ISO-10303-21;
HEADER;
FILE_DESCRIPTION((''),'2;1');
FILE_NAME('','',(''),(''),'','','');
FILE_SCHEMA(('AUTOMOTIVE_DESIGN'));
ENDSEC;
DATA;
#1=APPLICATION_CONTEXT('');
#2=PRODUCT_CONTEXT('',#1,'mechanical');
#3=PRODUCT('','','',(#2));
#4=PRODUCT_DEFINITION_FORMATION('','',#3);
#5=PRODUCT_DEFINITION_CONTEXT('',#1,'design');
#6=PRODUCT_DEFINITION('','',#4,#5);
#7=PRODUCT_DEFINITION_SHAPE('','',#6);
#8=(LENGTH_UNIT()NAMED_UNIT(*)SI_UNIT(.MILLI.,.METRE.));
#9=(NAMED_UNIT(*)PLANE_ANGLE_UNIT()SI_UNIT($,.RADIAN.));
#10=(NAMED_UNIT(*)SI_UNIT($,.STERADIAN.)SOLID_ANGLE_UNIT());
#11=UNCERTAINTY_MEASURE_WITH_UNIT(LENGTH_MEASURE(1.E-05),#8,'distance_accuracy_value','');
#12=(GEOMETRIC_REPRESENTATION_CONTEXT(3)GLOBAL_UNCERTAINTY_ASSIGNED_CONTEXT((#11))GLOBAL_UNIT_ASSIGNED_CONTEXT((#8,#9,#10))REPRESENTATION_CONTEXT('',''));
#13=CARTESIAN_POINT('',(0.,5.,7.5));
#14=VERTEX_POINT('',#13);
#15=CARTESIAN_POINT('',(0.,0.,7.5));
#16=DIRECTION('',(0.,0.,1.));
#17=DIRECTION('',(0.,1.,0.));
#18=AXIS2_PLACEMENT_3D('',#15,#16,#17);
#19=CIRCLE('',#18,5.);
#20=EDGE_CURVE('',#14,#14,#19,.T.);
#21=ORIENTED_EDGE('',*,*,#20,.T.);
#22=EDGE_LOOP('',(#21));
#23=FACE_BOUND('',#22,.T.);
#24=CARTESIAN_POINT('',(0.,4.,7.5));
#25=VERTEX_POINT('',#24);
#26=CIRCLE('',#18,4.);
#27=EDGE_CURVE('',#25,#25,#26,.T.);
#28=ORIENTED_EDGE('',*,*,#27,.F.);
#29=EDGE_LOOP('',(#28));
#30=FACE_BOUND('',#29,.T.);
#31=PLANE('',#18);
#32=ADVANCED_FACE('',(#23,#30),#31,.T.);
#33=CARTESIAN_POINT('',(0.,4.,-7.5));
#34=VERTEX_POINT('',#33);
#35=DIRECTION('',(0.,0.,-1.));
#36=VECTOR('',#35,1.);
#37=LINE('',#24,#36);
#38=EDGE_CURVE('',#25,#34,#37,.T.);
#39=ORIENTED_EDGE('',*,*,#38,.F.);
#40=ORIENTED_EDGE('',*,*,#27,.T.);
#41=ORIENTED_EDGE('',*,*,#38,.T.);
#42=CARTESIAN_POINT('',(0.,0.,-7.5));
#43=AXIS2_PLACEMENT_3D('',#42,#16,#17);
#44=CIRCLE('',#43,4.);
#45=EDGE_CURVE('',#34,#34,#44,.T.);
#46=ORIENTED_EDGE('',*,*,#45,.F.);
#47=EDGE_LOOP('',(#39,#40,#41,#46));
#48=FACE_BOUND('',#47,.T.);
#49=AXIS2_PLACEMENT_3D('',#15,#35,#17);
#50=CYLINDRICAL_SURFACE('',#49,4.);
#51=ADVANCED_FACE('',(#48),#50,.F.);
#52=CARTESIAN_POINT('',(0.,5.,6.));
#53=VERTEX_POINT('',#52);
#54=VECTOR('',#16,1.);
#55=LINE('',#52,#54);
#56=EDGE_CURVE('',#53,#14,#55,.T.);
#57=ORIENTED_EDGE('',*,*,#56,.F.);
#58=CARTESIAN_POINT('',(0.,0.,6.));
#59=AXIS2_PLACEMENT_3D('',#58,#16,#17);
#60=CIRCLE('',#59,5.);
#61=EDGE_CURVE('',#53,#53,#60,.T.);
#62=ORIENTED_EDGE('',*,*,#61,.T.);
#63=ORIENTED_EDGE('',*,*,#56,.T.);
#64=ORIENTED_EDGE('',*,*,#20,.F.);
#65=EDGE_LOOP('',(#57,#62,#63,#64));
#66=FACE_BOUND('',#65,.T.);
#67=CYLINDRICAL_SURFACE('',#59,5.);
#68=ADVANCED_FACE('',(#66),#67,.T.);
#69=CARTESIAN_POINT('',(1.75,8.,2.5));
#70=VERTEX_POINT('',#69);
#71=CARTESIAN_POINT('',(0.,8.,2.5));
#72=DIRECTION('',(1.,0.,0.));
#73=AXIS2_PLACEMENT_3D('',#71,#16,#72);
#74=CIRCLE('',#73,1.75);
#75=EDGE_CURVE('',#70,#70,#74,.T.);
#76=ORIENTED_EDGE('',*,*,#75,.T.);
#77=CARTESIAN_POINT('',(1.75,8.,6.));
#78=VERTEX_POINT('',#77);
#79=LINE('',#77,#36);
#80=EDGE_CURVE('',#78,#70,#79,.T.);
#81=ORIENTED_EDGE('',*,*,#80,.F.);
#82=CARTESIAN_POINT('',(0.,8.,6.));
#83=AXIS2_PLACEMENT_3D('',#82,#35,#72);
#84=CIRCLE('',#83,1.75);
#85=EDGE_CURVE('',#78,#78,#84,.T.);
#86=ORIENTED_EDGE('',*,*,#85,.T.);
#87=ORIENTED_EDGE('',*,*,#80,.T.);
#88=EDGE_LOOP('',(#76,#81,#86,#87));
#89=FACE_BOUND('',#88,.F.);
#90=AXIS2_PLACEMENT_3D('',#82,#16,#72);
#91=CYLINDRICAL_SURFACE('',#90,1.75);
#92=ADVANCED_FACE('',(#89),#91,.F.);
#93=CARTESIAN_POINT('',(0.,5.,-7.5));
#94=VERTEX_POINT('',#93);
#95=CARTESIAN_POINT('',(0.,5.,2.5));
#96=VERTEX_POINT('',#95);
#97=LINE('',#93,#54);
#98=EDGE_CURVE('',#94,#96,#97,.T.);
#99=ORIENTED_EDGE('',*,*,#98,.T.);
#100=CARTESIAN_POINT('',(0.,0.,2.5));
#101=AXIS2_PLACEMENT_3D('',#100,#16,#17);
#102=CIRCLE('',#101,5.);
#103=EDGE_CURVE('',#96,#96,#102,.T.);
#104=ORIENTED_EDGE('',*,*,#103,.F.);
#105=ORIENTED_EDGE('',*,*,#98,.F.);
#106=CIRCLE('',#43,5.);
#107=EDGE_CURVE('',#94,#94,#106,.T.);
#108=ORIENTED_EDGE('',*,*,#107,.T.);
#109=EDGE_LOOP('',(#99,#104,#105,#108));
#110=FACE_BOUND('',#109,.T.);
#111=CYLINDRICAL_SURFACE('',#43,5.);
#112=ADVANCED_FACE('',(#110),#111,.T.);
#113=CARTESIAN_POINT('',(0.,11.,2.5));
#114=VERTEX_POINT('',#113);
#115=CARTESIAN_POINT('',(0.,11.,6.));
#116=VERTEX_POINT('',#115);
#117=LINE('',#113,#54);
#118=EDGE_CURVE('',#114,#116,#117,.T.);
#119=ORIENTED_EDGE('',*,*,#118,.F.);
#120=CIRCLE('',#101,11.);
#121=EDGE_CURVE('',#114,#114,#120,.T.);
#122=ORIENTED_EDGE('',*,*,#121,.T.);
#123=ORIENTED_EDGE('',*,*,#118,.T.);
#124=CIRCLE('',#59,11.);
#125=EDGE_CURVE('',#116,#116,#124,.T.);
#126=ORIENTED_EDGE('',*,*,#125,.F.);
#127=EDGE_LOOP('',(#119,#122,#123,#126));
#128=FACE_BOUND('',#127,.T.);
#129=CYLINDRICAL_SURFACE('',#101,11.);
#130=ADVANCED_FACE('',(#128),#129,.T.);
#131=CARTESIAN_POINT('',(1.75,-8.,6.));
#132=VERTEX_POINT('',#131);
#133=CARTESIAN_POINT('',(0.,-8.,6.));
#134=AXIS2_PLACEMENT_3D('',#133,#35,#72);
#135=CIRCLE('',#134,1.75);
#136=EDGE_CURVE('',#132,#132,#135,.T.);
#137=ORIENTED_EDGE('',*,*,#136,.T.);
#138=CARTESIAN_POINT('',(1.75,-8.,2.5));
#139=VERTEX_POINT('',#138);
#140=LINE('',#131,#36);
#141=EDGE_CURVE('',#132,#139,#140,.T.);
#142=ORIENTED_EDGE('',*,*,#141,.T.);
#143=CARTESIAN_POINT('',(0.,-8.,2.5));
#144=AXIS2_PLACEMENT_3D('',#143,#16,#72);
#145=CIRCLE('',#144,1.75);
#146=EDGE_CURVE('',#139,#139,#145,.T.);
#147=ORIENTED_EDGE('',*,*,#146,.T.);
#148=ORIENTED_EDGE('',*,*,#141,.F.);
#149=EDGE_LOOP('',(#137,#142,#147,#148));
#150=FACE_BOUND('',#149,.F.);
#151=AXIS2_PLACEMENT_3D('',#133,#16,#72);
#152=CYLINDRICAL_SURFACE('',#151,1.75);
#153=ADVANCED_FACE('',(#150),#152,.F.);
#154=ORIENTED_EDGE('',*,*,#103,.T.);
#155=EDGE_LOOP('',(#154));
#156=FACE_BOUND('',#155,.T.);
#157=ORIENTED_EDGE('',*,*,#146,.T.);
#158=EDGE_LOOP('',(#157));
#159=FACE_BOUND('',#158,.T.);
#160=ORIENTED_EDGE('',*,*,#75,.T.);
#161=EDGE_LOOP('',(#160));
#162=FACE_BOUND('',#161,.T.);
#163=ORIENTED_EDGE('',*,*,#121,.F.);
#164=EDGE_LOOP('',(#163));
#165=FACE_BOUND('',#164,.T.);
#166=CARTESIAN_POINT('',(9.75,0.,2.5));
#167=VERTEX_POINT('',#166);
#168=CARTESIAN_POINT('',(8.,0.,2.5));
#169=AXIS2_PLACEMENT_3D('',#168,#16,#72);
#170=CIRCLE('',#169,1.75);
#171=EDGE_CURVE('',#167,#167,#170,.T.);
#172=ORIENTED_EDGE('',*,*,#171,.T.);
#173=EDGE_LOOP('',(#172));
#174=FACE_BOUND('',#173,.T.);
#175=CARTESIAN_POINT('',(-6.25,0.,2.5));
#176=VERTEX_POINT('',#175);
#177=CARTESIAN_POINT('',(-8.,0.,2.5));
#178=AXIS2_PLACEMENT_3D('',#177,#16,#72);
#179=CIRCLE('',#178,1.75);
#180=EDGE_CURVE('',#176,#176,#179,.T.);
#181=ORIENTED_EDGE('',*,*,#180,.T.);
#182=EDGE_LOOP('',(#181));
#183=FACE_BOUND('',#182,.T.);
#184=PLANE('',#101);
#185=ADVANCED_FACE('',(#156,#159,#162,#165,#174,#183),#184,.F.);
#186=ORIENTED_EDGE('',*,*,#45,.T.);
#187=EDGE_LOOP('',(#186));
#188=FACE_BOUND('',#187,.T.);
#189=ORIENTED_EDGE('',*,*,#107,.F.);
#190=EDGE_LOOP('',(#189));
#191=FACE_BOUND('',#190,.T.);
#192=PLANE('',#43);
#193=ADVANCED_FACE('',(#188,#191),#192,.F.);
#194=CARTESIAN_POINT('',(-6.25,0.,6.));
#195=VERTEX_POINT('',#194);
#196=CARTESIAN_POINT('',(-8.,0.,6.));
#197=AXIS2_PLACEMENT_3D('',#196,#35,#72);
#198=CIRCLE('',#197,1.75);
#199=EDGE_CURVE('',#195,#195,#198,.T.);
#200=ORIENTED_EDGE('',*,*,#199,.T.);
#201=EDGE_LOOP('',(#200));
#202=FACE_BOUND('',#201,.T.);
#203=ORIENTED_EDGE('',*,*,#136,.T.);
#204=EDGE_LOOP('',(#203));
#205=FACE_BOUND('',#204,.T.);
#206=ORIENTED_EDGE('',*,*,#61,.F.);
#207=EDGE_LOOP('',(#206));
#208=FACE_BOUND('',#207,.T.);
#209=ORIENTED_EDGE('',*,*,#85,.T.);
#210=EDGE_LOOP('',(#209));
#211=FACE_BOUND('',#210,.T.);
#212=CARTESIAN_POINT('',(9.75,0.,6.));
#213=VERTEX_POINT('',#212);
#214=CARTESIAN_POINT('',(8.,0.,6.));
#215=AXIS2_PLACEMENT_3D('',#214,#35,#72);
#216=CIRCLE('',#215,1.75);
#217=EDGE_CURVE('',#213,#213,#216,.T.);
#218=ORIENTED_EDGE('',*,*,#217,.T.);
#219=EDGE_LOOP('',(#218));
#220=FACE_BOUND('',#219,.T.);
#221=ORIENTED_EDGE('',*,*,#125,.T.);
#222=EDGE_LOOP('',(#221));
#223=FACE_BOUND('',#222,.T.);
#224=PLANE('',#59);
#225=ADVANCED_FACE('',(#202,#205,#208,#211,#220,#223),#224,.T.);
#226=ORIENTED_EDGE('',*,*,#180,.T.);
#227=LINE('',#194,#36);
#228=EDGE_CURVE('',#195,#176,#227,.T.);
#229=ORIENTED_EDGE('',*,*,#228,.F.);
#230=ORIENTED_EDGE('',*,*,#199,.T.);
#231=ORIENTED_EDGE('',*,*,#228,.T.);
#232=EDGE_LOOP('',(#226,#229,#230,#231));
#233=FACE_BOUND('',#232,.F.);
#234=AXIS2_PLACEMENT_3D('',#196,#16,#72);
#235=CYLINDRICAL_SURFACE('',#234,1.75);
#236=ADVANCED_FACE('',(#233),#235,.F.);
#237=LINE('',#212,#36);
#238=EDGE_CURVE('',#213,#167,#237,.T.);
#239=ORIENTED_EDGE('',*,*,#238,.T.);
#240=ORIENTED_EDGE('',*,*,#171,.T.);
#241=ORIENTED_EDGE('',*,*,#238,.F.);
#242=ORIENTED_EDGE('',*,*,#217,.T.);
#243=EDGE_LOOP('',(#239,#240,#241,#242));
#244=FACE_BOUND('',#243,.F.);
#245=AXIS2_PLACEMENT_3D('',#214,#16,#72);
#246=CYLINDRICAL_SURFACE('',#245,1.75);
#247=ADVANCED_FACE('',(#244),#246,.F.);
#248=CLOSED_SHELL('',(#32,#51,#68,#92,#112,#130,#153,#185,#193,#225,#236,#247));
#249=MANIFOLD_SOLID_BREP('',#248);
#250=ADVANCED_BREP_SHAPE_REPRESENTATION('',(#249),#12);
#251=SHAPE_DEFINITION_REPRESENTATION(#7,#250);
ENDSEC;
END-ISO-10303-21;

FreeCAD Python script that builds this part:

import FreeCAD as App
import Part
import Sketcher
from FreeCAD import Vector
Q = App.Units.Quantity

doc = App.newDocument("Part")
body = doc.addObject("PartDesign::Body", "Body")

sketch1 = body.newObject("Sketcher::SketchObject", "Sketch")
sketch1.AttachmentSupport = (doc.getObject("YZ_Plane"), [""])
sketch1.MapMode = "FlatFace"
sketch1.addGeometry([
    Part.LineSegment(Vector(5, 6, 0), Vector(5, 7.5, 0)),
    Part.LineSegment(Vector(5, 7.5, 0), Vector(4, 7.5, 0)),
    Part.LineSegment(Vector(4, 7.5, 0), Vector(4, -7.5, 0)),
    Part.LineSegment(Vector(4, -7.5, 0), Vector(5, -7.5, 0)),
    Part.LineSegment(Vector(5, -7.5, 0), Vector(5, 2.5, 0)),
    Part.LineSegment(Vector(5, 2.5, 0), Vector(11, 2.5, 0)),
    Part.LineSegment(Vector(11, 2.5, 0), Vector(11, 6, 0)),
    Part.LineSegment(Vector(11, 6, 0), Vector(5, 6, 0)),
], False)
sketch1.addConstraint([
    Sketcher.Constraint("Coincident", 0, 2, 1, 1),
    Sketcher.Constraint("Coincident", 1, 2, 2, 1),
    Sketcher.Constraint("Coincident", 2, 2, 3, 1),
    Sketcher.Constraint("Coincident", 3, 2, 4, 1),
    Sketcher.Constraint("Coincident", 4, 2, 5, 1),
    Sketcher.Constraint("Coincident", 5, 2, 6, 1),
    Sketcher.Constraint("Coincident", 6, 2, 7, 1),
    Sketcher.Constraint("Coincident", 7, 2, 0, 1),
    Sketcher.Constraint("Vertical", 0),
    Sketcher.Constraint("Horizontal", 1),
    Sketcher.Constraint("Vertical", 2),
    Sketcher.Constraint("Horizontal", 3),
    Sketcher.Constraint("Vertical", 4),
    Sketcher.Constraint("Horizontal", 5),
    Sketcher.Constraint("Vertical", 6),
    Sketcher.Constraint("Horizontal", 7),
    Sketcher.Constraint("Symmetric", 0, 2, 3, 2, -1),
    Sketcher.Constraint("DistanceY", 4, 1, 4, 2, Q("10 mm")),
    Sketcher.Constraint("DistanceY", 0, 1, 0, 2, Q("1.5 mm")),
    Sketcher.Constraint("DistanceY", 6, 1, 6, 2, Q("3.5 mm")),
    Sketcher.Constraint("DistanceX", -1, 1, 0, 2, Q("5 mm")),
    Sketcher.Constraint("DistanceX", -1, 1, 1, 2, Q("4 mm")),
    Sketcher.Constraint("DistanceX", -1, 1, 5, 2, Q("11 mm")),
])
revolution = body.newObject("PartDesign::Revolution", "Revolution")
revolution.Profile = sketch1
revolution.ReferenceAxis = (sketch1, ["V_Axis"])
revolution.Angle = 360

sketch2 = body.newObject("Sketcher::SketchObject", "Sketch001")
sketch2.AttachmentSupport = (doc.getObject("XY_Plane"), [""])
sketch2.MapMode = "FlatFace"
sketch2.AttachmentOffset = App.Placement(Vector(0, 0, 6), App.Rotation())
sketch2.addGeometry([
    Part.Circle(Vector(8, 0, 0), Vector(0, 0, 1), 1.75),
    Part.Circle(Vector(0, 8, 0), Vector(0, 0, 1), 1.75),
    Part.Circle(Vector(0, -8, 0), Vector(0, 0, 1), 1.75),
    Part.Circle(Vector(-8, 0, 0), Vector(0, 0, 1), 1.75),
], False)
sketch2.addConstraint([
    Sketcher.Constraint("Equal", 0, 1),
    Sketcher.Constraint("Equal", 1, 2),
    Sketcher.Constraint("Equal", 2, 3),
    Sketcher.Constraint("Symmetric", 1, 3, 2, 3, -1, 1),
    Sketcher.Constraint("Symmetric", 0, 3, 3, 3, -1, 1),
    Sketcher.Constraint("PointOnObject", 0, 3, -1),
    Sketcher.Constraint("PointOnObject", 1, 3, -2),
    Sketcher.Constraint("Diameter", 0, Q("3.5 mm")),
    Sketcher.Constraint("DistanceY", 2, 3, 1, 3, Q("16 mm")),
    Sketcher.Constraint("DistanceX", 3, 3, 0, 3, Q("16 mm")),
])
pocket1 = body.newObject("PartDesign::Pocket", "Pocket")
pocket1.Profile = sketch2
pocket1.Length = 10

doc.recompute()
